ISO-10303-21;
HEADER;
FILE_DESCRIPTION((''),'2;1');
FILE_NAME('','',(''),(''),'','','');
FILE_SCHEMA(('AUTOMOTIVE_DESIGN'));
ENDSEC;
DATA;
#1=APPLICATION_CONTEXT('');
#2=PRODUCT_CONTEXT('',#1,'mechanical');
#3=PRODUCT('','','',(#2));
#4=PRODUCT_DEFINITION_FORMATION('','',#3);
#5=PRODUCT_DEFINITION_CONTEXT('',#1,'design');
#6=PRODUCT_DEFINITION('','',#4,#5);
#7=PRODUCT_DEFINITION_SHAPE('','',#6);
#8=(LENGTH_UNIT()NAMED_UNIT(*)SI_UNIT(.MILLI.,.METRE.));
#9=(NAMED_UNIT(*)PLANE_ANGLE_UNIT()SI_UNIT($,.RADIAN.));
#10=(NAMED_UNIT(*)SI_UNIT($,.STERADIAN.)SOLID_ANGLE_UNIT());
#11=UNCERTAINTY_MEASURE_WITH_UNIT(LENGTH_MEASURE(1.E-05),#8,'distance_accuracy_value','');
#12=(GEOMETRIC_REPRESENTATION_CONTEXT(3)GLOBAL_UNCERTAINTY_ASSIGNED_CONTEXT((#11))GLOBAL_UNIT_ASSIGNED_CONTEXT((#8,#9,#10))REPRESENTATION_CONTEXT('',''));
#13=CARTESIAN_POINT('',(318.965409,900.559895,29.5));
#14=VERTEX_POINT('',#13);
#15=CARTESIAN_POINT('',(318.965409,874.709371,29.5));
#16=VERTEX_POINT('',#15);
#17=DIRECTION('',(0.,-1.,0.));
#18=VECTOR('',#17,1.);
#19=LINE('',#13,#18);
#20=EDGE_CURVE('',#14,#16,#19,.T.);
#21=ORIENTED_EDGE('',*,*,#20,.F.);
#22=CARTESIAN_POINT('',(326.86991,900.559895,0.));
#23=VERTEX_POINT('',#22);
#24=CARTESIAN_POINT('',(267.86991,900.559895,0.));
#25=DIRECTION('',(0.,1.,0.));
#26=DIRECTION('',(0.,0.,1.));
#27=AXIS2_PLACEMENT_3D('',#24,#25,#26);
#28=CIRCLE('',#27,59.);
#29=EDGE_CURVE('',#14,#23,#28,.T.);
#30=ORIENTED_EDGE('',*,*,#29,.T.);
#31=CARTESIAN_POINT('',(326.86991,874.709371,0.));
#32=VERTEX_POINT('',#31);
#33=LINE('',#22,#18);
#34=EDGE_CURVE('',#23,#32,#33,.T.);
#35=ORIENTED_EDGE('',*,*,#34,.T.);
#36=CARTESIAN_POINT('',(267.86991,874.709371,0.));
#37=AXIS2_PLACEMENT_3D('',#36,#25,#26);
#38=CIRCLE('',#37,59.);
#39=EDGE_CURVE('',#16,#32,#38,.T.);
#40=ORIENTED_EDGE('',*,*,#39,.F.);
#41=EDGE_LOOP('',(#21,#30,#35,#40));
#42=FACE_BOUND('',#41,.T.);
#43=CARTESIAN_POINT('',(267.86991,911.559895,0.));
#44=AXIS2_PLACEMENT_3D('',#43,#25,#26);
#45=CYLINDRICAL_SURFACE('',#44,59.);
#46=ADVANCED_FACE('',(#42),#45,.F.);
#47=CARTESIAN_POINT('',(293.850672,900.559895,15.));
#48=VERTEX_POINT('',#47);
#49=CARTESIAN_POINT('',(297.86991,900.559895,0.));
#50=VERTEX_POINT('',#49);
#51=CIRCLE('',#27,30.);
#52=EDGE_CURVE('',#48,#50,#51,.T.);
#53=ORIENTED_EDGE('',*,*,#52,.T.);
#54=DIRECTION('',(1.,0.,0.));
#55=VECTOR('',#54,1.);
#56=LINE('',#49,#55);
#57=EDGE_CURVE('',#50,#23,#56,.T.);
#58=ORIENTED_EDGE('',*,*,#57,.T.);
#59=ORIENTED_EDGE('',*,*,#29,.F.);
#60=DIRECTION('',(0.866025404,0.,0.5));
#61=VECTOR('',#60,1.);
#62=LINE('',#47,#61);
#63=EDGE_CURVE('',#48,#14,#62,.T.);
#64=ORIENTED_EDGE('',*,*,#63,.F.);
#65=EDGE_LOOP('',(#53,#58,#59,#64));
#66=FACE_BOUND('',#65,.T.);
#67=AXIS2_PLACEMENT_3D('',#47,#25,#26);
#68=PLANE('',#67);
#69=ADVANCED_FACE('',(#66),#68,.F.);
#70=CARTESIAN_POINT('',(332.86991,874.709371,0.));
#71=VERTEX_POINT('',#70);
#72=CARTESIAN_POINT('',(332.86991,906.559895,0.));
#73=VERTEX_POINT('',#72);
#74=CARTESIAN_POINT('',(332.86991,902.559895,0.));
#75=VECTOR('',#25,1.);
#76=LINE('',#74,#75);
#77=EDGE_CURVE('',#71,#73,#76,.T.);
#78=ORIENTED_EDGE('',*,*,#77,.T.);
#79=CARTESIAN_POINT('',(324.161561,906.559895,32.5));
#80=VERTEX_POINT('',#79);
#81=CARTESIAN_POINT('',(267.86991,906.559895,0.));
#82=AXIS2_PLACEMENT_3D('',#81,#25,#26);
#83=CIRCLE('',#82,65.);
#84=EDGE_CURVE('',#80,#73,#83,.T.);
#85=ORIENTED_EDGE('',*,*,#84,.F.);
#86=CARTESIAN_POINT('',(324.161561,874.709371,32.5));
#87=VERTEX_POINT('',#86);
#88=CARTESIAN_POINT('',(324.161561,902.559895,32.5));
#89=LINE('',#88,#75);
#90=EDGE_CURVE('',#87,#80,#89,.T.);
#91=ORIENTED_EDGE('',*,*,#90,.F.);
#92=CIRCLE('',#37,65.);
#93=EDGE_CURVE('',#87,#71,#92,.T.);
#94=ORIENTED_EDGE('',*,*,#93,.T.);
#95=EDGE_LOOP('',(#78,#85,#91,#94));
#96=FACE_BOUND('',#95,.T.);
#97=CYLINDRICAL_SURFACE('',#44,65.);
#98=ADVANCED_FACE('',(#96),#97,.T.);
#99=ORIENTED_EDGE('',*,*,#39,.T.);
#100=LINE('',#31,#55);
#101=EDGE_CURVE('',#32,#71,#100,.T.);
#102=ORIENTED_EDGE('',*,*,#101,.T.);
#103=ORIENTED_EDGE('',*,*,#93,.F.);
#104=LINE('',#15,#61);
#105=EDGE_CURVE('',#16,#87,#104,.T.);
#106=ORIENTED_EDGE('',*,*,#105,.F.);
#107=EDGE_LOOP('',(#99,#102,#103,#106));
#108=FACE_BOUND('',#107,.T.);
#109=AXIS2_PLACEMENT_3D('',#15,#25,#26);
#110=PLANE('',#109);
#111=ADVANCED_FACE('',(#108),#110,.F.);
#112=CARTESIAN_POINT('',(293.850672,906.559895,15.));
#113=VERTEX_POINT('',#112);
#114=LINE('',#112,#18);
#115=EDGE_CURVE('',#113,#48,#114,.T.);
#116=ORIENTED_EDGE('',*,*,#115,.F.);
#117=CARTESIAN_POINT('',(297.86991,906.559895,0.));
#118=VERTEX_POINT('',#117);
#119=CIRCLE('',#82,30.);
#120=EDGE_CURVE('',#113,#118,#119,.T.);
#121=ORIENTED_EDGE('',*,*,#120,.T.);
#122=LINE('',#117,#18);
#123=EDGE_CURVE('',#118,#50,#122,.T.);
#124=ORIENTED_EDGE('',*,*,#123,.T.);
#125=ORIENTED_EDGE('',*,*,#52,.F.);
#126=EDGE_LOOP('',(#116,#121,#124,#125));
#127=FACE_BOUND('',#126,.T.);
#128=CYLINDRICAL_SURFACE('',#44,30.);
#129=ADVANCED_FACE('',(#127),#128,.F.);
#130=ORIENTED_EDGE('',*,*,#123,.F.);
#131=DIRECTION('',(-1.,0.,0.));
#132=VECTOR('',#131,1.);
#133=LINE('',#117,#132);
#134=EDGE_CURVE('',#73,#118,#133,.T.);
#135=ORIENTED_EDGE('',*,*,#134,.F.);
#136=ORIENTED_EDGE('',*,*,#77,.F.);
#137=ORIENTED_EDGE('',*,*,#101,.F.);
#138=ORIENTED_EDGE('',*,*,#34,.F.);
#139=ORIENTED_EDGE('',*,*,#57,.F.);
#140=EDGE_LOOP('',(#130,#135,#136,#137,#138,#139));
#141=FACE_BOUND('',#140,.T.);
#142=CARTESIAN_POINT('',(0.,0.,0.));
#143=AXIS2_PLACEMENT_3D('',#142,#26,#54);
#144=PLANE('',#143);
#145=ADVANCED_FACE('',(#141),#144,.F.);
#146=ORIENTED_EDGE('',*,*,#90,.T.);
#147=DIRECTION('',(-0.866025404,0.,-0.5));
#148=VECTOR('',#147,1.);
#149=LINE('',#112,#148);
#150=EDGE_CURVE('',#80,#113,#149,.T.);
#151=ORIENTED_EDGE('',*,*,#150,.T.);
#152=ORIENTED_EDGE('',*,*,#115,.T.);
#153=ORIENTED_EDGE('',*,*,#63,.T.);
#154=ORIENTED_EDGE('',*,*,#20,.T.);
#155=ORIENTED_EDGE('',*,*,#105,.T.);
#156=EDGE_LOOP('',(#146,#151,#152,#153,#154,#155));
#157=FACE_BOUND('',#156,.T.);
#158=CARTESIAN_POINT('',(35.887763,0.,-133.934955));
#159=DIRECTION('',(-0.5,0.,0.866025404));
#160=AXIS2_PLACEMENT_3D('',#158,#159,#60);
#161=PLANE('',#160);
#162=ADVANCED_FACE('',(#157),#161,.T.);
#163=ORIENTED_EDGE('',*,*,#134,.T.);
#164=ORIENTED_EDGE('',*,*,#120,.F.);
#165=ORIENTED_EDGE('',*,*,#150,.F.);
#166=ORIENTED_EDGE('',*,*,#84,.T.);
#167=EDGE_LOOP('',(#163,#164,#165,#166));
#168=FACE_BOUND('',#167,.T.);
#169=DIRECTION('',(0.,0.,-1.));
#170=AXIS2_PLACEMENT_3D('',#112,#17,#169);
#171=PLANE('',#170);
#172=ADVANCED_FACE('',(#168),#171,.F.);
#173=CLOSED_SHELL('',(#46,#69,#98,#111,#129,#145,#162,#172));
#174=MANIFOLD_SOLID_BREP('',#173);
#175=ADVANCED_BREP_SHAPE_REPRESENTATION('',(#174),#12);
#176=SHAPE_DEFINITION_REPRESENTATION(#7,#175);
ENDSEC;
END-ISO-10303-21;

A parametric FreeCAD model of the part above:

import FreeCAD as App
import Part
import Sketcher
from FreeCAD import Vector


def add_polygon(sketch, points):
    """Adds a closed chain of lines whose ends are joined by coincident constraints."""
    first, n = sketch.GeometryCount, len(points)
    for a, b in zip(points, points[1:] + points[:1]):
        sketch.addGeometry(Part.LineSegment(App.Vector(*a, 0), App.Vector(*b, 0)), False)
    for i in range(n):
        sketch.addConstraint(Sketcher.Constraint("Coincident", first + i, 2, first + (i + 1) % n, 1))

doc = App.newDocument("Part")
body = doc.addObject("PartDesign::Body", "Body")

# Sketch on XY plane
sketch1 = body.newObject("Sketcher::SketchObject", "Sketch")
sketch1.AttachmentSupport = (doc.getObject("XY_Plane"), [""])
sketch1.MapMode = "FlatFace"
add_polygon(sketch1, [(333, 907), (298, 907), (298, 901), (327, 901), (327, 875), (333, 875)])  # lines 0-5
sketch1.addGeometry(Part.LineSegment(Vector(268, 907, 0), Vector(268, 875, 0)), True)  # axis
sketch1.addConstraint([
    Sketcher.Constraint("Horizontal", 0),
    Sketcher.Constraint("Vertical", 1),
    Sketcher.Constraint("Horizontal", 2),
    Sketcher.Constraint("Vertical", 3),
    Sketcher.Constraint("Horizontal", 4),
    Sketcher.Constraint("Vertical", 5),
    Sketcher.Constraint("Vertical", 6),
    Sketcher.Constraint("Horizontal", 5, 2, 6, 1),
    Sketcher.Constraint("Horizontal", 4, 2, 6, 2),
    Sketcher.Constraint("Equal", 4, 1),
    Sketcher.Constraint("DistanceX", 0, 2, 0, 1, 35.0),
    Sketcher.Constraint("DistanceX", 2, 1, 2, 2, 29.0),
    Sketcher.Constraint("DistanceX", 6, 1, 0, 2, 30.0),
    Sketcher.Constraint("DistanceY", 3, 2, 3, 1, 25.850524),
    Sketcher.Constraint("DistanceX", -1, 1, 0, 2, 297.86991),
    Sketcher.Constraint("DistanceY", -1, 1, 3, 2, 874.709371),
])
revolution = body.newObject("PartDesign::Revolution", "Revolution")
revolution.Profile = sketch1
revolution.ReferenceAxis = (sketch1, ["Axis0"])
revolution.Angle = 30

doc.recompute()
